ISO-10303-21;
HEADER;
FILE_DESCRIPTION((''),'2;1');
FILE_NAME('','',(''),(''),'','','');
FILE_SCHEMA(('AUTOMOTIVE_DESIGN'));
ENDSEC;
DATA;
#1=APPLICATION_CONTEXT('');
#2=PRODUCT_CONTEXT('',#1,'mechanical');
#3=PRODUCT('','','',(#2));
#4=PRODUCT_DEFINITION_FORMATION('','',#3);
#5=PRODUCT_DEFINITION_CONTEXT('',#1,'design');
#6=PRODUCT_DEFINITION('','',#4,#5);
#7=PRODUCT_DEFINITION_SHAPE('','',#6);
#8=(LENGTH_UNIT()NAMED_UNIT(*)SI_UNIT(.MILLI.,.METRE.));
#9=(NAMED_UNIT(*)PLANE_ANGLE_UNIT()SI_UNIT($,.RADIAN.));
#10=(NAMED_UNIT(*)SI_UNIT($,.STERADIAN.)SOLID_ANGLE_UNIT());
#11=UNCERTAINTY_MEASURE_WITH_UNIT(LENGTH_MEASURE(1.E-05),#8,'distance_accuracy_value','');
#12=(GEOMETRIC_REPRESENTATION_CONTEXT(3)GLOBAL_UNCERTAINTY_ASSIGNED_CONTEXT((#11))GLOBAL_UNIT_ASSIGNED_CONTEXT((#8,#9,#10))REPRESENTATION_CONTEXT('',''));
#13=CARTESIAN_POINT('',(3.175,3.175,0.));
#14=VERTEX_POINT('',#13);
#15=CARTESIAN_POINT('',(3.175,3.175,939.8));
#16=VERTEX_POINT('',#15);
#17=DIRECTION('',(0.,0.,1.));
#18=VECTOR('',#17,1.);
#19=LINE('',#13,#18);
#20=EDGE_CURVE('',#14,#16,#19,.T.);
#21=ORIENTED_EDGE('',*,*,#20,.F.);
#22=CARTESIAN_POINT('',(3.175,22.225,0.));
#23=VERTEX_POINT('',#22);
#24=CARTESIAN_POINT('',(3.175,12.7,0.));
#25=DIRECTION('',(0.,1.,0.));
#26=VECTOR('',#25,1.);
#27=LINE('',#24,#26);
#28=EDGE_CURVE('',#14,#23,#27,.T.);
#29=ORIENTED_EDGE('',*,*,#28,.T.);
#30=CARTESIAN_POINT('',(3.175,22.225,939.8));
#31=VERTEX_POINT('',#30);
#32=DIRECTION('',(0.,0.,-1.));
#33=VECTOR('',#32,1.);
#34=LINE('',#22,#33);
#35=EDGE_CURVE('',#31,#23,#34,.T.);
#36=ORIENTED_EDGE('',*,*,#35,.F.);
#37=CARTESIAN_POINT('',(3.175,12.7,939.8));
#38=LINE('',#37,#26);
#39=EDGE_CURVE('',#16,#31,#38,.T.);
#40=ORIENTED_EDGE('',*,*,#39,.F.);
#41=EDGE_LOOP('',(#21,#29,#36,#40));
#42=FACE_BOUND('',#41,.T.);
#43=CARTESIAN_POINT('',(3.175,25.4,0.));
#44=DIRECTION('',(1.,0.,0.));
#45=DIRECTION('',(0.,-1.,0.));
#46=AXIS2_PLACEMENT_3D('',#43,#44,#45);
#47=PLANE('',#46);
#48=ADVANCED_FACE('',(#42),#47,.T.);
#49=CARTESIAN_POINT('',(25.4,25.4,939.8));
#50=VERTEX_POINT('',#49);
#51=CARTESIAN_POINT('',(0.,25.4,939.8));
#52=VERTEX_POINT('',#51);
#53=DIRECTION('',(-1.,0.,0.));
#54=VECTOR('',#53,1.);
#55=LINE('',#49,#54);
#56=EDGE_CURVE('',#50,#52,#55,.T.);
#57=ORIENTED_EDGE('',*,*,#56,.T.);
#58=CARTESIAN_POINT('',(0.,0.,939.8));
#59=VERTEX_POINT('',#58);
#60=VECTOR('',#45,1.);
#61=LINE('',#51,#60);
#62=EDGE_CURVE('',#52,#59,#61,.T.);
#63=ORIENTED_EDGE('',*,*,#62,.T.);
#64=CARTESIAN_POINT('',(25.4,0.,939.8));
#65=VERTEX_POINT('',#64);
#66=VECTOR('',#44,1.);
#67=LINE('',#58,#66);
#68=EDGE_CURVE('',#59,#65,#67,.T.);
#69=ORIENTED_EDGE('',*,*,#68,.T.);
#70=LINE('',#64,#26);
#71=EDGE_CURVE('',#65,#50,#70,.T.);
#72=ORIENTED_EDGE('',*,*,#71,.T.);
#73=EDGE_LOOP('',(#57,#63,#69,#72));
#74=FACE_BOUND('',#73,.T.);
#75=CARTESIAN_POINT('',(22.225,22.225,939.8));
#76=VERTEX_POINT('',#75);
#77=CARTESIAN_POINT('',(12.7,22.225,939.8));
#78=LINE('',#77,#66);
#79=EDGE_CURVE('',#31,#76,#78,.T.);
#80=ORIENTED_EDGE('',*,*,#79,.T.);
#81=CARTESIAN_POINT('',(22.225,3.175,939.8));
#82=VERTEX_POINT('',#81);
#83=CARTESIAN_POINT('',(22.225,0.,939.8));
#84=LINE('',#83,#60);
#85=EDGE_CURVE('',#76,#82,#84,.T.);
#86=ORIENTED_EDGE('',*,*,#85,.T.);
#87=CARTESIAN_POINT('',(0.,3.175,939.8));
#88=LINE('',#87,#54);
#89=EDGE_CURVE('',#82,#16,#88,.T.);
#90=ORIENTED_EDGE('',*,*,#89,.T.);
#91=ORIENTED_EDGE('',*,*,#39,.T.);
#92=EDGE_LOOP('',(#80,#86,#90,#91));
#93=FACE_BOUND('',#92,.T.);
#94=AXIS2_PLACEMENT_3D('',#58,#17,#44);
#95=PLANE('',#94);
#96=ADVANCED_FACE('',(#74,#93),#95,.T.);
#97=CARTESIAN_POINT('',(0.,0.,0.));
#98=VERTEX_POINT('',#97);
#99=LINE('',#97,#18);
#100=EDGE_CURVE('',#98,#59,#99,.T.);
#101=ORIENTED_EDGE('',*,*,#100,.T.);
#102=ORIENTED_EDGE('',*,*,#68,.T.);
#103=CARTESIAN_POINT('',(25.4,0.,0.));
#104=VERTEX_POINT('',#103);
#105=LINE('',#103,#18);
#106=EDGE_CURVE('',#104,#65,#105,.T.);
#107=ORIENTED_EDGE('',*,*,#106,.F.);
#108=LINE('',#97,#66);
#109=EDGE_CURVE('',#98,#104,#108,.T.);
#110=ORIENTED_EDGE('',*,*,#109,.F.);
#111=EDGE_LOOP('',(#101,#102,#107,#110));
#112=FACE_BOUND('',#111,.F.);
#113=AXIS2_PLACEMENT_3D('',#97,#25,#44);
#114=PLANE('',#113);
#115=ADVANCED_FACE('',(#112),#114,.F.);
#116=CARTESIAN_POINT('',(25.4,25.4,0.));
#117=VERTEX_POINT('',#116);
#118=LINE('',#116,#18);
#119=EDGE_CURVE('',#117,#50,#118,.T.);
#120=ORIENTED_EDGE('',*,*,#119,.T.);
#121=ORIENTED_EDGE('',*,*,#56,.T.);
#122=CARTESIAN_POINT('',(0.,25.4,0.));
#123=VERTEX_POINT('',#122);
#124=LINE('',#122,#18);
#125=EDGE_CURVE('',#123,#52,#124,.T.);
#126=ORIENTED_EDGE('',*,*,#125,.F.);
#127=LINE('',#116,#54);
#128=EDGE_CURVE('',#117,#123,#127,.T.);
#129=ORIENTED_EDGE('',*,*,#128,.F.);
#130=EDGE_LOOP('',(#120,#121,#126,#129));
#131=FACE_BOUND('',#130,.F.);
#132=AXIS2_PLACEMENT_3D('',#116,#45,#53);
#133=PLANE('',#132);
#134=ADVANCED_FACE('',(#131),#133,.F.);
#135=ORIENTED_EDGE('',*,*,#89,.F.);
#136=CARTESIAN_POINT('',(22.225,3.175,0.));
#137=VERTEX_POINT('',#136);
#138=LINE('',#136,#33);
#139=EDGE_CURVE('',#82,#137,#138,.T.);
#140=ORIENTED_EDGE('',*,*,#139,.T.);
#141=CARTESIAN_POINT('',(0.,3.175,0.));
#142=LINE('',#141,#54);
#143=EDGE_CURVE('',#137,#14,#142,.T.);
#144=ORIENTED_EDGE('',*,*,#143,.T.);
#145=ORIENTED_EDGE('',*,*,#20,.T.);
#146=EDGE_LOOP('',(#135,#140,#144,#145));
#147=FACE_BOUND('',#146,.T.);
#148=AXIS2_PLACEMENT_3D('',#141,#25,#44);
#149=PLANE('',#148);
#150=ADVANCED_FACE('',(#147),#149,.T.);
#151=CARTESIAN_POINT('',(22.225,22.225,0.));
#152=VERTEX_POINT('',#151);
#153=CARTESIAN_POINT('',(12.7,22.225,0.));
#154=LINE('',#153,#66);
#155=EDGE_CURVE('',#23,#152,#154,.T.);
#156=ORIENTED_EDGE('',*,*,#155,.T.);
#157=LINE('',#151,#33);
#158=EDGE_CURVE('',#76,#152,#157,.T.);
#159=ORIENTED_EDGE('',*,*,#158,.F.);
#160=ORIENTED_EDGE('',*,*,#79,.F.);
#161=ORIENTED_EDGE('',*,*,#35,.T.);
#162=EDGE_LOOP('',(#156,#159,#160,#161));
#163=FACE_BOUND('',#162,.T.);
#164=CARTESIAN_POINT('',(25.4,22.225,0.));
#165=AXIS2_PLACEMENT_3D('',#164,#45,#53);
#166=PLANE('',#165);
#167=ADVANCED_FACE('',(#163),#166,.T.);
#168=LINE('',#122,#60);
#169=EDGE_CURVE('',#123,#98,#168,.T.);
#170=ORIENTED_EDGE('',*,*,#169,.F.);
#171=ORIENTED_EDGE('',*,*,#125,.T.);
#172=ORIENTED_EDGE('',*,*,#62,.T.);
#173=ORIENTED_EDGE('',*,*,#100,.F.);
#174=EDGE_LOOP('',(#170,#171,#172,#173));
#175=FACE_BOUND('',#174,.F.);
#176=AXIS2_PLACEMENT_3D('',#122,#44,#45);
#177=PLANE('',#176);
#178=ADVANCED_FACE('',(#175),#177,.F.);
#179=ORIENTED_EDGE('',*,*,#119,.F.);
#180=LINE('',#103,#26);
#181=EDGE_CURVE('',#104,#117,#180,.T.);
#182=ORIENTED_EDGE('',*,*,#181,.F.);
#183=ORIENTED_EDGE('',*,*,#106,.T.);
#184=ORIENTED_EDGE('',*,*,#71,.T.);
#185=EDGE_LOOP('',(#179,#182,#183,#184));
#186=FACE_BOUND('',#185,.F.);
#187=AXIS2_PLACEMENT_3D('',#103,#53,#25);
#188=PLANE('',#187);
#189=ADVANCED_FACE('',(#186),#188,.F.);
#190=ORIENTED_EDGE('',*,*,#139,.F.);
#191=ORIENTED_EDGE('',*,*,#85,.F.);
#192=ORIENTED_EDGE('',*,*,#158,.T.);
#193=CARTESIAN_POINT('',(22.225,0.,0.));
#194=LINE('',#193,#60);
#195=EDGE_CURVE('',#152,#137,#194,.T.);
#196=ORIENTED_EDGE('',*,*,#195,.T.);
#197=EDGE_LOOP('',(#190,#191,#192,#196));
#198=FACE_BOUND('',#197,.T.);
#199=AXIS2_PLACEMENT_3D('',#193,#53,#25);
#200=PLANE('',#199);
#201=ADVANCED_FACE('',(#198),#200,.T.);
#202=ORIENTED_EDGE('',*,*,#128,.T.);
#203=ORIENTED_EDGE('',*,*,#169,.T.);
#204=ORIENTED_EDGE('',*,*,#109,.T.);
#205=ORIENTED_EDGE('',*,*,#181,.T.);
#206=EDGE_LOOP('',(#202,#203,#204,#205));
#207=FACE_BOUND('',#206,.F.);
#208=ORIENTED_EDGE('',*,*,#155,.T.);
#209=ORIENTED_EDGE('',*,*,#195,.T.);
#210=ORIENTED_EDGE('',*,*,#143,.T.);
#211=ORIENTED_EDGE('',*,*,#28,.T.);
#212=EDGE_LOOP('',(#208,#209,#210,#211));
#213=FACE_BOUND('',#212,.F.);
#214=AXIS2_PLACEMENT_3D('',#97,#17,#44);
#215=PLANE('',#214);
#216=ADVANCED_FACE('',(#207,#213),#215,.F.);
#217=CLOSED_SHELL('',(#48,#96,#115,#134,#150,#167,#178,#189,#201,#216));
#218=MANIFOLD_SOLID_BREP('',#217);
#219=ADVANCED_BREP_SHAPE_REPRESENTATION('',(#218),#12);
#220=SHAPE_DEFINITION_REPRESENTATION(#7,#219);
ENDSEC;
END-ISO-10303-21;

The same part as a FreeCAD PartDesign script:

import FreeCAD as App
import Part
import Sketcher
Q = App.Units.Quantity


def faces_at(feature, points):
    """Names of the faces that lie closest to the given points."""
    faces = feature.Shape.Faces
    near = lambda p: min(range(len(faces)), key=lambda i: faces[i].distToShape(Part.Vertex(*p))[0])
    return sorted({f"Face{near(p) + 1}" for p in points})

doc = App.newDocument("Part")
params = doc.addObject("Spreadsheet::Sheet", "Params")
for row, (alias, value) in enumerate([
    ("sketch1_width", "1 in"),
    ("pad1_length", "37 in"),
    ("thickness_wall", "0.125 in"),
], start=1):
    params.set(f"A{row}", alias)
    params.set(f"B{row}", "=" + value)
    params.setAlias(f"B{row}", alias)

body = doc.addObject("PartDesign::Body", "Body")

# Sketch on XY plane
sketch1 = body.newObject("Sketcher::SketchObject", "Sketch")
sketch1.AttachmentSupport = (doc.getObject("XY_Plane"), [""])
sketch1.MapMode = "FlatFace"
sketch1.addGeometry([
    Part.LineSegment(App.Vector(0, 25, 0), App.Vector(0, 0, 0)),
    Part.LineSegment(App.Vector(0, 0, 0), App.Vector(25, 0, 0)),
    Part.LineSegment(App.Vector(25, 0, 0), App.Vector(25, 25, 0)),
    Part.LineSegment(App.Vector(25, 25, 0), App.Vector(0, 25, 0)),
], False)
sketch1.addConstraint([
    Sketcher.Constraint("Coincident", 0, 2, 1, 1),
    Sketcher.Constraint("Coincident", 1, 2, 2, 1),
    Sketcher.Constraint("Coincident", 2, 2, 3, 1),
    Sketcher.Constraint("Coincident", 3, 2, 0, 1),
    Sketcher.Constraint("Vertical", 0),
    Sketcher.Constraint("Horizontal", 1),
    Sketcher.Constraint("Vertical", 2),
    Sketcher.Constraint("Horizontal", 3),
    Sketcher.Constraint("Coincident", 0, 2, -1, 1),
    Sketcher.Constraint("Equal", 3, 0),
    Sketcher.Constraint("DistanceX", 1, 1, 1, 2, Q("1 in")),
])
sketch1.setExpression("Constraints[10]", "Params.sketch1_width")
pad1 = body.newObject("PartDesign::Pad", "Pad")
pad1.Profile = sketch1
pad1.setExpression("Length", "Params.pad1_length")
doc.recompute()

thickness = body.newObject("PartDesign::Thickness", "Thickness")
thickness.Base = (pad1, faces_at(pad1, [(8.467, 16.933, 0), (8.467, 16.933, 939.8)]))
thickness.setExpression("Value", "Params.thickness_wall")
thickness.Reversed = True
thickness.Join = "Intersection"

doc.recompute()
